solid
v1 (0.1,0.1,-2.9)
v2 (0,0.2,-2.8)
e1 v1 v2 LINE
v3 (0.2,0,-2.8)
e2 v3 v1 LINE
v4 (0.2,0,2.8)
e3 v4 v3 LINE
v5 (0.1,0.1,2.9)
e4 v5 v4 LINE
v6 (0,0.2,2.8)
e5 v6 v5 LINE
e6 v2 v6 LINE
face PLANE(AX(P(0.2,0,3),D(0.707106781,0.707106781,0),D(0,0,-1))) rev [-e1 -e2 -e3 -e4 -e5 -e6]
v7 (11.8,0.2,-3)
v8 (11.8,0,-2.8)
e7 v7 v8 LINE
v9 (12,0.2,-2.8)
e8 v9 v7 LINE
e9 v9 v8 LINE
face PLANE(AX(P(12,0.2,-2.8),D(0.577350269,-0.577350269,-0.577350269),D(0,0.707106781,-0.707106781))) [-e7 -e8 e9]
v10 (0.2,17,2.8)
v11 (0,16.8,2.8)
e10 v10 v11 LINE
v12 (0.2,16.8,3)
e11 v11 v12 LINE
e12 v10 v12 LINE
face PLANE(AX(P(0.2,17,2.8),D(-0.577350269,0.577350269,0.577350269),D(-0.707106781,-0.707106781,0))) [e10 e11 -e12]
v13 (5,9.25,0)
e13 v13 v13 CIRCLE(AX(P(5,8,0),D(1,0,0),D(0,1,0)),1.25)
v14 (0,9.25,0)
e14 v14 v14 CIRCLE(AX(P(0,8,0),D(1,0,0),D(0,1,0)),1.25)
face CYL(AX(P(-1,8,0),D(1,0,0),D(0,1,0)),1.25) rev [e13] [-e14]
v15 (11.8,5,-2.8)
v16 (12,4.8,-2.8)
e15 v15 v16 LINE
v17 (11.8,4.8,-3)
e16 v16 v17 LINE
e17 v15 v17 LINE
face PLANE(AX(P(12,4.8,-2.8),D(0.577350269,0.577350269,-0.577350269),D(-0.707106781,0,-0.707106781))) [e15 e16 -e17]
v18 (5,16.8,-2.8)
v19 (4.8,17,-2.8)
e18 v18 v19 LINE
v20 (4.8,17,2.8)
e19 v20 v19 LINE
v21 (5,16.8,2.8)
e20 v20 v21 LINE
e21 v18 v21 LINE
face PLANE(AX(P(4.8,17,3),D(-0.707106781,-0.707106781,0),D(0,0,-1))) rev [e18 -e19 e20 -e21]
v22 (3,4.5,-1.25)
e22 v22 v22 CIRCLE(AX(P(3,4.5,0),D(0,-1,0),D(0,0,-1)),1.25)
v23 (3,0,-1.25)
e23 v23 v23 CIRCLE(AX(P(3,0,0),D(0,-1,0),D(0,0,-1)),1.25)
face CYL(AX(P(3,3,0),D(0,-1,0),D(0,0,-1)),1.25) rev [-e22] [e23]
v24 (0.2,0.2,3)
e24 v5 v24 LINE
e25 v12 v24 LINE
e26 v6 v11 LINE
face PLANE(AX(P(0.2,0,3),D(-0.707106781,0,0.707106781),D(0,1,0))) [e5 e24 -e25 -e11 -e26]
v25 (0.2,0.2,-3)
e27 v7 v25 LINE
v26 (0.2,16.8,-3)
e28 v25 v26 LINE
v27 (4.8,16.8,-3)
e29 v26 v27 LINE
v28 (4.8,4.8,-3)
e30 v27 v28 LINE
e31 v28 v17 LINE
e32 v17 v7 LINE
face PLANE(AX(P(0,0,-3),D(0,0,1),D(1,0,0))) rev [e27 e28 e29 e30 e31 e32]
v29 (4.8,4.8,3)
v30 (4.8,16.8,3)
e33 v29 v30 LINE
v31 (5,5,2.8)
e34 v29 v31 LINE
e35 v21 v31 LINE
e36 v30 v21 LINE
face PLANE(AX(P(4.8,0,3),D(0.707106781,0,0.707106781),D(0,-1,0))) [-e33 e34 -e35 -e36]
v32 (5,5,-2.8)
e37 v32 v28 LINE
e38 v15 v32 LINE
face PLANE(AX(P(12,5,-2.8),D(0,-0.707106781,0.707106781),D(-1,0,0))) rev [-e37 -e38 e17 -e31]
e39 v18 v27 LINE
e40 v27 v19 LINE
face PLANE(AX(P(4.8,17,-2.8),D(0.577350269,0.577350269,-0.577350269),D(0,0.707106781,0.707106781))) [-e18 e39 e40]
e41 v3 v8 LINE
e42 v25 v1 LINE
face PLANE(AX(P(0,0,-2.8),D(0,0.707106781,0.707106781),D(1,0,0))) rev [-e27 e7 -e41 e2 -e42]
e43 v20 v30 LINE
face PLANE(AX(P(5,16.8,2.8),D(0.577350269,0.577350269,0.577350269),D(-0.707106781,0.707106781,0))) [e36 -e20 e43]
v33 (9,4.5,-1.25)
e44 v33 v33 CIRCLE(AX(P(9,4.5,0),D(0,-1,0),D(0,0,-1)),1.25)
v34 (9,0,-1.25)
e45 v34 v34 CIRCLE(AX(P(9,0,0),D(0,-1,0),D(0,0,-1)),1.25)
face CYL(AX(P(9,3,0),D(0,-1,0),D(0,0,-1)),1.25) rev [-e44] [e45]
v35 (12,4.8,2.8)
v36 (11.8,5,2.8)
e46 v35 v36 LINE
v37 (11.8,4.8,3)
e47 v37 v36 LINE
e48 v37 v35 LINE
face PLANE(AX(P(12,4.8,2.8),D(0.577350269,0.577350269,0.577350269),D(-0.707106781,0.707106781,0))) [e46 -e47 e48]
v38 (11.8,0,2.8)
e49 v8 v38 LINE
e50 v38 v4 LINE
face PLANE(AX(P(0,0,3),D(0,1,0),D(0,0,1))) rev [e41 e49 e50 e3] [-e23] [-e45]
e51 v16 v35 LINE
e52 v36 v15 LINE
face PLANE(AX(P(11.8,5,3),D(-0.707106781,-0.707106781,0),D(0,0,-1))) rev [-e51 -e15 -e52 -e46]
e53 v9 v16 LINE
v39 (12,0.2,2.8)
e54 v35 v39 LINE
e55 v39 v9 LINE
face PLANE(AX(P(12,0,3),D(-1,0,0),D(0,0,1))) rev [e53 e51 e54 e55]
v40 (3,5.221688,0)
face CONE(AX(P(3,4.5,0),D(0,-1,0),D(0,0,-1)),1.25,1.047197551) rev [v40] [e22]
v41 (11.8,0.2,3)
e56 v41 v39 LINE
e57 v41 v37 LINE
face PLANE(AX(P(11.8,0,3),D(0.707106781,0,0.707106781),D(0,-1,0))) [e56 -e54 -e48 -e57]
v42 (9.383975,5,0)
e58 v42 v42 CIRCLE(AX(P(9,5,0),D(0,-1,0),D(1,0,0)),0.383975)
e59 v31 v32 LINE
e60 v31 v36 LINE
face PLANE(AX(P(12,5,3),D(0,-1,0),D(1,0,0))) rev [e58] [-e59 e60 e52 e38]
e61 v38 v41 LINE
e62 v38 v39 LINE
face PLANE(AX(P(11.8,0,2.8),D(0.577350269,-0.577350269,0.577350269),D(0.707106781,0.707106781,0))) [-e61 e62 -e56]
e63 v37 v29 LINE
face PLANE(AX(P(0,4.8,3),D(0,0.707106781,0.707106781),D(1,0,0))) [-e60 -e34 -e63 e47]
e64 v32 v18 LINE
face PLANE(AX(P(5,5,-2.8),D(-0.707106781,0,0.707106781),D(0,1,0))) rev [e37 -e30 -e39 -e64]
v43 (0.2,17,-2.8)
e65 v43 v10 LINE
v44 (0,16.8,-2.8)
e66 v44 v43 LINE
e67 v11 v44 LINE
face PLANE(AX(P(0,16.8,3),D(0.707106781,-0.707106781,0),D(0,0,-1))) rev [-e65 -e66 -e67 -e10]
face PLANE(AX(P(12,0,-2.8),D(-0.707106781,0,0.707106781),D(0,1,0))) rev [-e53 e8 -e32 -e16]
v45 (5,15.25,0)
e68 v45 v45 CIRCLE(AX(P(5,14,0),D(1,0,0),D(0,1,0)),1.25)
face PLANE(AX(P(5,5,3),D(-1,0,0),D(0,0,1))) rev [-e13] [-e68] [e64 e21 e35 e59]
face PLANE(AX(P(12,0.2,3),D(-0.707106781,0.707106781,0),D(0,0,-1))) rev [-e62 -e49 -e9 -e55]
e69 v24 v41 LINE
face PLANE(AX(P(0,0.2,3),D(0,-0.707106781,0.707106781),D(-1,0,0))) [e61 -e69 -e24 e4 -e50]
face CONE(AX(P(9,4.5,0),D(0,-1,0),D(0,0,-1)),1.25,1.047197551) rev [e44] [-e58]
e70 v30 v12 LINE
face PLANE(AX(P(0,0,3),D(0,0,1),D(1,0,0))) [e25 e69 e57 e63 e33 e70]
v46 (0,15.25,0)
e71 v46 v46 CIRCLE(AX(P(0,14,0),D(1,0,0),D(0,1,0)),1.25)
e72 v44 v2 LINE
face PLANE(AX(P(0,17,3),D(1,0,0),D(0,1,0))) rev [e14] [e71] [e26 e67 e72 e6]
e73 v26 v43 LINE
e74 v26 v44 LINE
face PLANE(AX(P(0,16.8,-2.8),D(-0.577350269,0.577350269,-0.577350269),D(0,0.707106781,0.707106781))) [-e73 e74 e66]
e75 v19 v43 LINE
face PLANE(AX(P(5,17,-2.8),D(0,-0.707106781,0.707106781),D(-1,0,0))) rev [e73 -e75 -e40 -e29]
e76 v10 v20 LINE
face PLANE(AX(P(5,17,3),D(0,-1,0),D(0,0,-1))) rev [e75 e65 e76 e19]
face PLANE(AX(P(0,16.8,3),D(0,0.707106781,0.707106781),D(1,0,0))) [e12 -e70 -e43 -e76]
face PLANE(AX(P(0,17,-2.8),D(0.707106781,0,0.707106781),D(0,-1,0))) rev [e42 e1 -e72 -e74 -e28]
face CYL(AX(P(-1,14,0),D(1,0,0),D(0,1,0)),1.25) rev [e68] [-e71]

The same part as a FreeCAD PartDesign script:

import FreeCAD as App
import Part
import Sketcher

V = App.Vector
Q = App.Units.Quantity


def edges_at(feature, points):
    """Names of the edges that pass closest to the given points."""
    edges = feature.Shape.Edges
    near = lambda p: min(range(len(edges)), key=lambda i: edges[i].distToShape(Part.Vertex(*p))[0])
    return sorted({f"Edge{near(p) + 1}" for p in points})


def add_polygon(sketch, points):
    """Adds a closed chain of lines whose ends are joined by coincident constraints."""
    first, n = sketch.GeometryCount, len(points)
    for a, b in zip(points, points[1:] + points[:1]):
        sketch.addGeometry(Part.LineSegment(App.Vector(*a, 0), App.Vector(*b, 0)), False)
    for i in range(n):
        sketch.addConstraint(Sketcher.Constraint("Coincident", first + i, 2, first + (i + 1) % n, 1))

doc = App.newDocument("Part")
body = doc.addObject("PartDesign::Body", "Body")

# Sketch on XY plane
sketch1 = body.newObject("Sketcher::SketchObject", "Sketch")
sketch1.AttachmentSupport = (doc.getObject("XY_Plane"), [""])
sketch1.MapMode = "FlatFace"
add_polygon(sketch1, [(0, 17), (0, 0), (12, 0), (12, 5), (5, 5), (5, 17)])  # lines 0-5
sketch1.addConstraint([
    Sketcher.Constraint("Vertical", 0),
    Sketcher.Constraint("Horizontal", 1),
    Sketcher.Constraint("Vertical", 2),
    Sketcher.Constraint("Horizontal", 3),
    Sketcher.Constraint("Vertical", 4),
    Sketcher.Constraint("Horizontal", 5),
    Sketcher.Constraint("Coincident", 0, 2, -1, 1),
    Sketcher.Constraint("Equal", 5, 2),
    Sketcher.Constraint("Equal", 1, 4),
    Sketcher.Constraint("DistanceX", 1, 1, 1, 2, Q("12 mm")),
    Sketcher.Constraint("DistanceX", 3, 2, 3, 1, Q("7 mm")),
])
pad1 = body.newObject("PartDesign::Pad", "Pad")
pad1.Profile = sketch1
pad1.Length = 6
pad1.Midplane = True

# Sketch on YZ plane
sketch2 = body.newObject("Sketcher::SketchObject", "Sketch001")
sketch2.AttachmentSupport = (doc.getObject("YZ_Plane"), [""])
sketch2.MapMode = "FlatFace"
sketch2.AttachmentOffset = App.Placement(V(0, 0, 5), App.Rotation())
sketch2.addGeometry([
    Part.Circle(V(14, 0, 0), V(0, 0, 1), 1.25),
    Part.Circle(V(8, 0, 0), V(0, 0, 1), 1.25),
], False)
sketch2.addConstraint([
    Sketcher.Constraint("Equal", 0, 1),
    Sketcher.Constraint("PointOnObject", 0, 3, -1),
    Sketcher.Constraint("PointOnObject", 1, 3, -1),
    Sketcher.Constraint("Diameter", 0, Q("2.5 mm")),
    Sketcher.Constraint("DistanceX", -1, 1, 0, 3, Q("14 mm")),
    Sketcher.Constraint("DistanceX", -1, 1, 1, 3, Q("8 mm")),
])
pocket1 = body.newObject("PartDesign::Pocket", "Pocket")
pocket1.Profile = sketch2
pocket1.Length = 6

# Sketch on XZ plane
sketch3 = body.newObject("Sketcher::SketchObject", "Sketch002")
sketch3.AttachmentSupport = (doc.getObject("XZ_Plane"), [""])
sketch3.MapMode = "FlatFace"
sketch3.addGeometry([
    Part.Circle(V(9, 0, 0), V(0, 0, 1), 1.25),
    Part.Circle(V(3, 0, 0), V(0, 0, 1), 1.25),
], False)
sketch3.addConstraint([
    Sketcher.Constraint("Equal", 0, 1),
    Sketcher.Constraint("PointOnObject", 0, 3, -1),
    Sketcher.Constraint("PointOnObject", 1, 3, -1),
    Sketcher.Constraint("Diameter", 0, Q("2.5 mm")),
    Sketcher.Constraint("DistanceX", -1, 1, 0, 3, Q("9 mm")),
    Sketcher.Constraint("DistanceX", -1, 1, 1, 3, Q("3 mm")),
])
pocket2 = body.newObject("PartDesign::Pocket", "Pocket001")
pocket2.Profile = sketch3
pocket2.Length = 3

# Sketch on XZ plane
sketch4 = body.newObject("Sketcher::SketchObject", "Sketch003")
sketch4.AttachmentSupport = (doc.getObject("XZ_Plane"), [""])
sketch4.MapMode = "FlatFace"
sketch4.addGeometry([
    Part.Circle(V(3, 0, 0), V(0, 0, 1), 1.25),
    Part.Circle(V(9, 0, 0), V(0, 0, 1), 1.25),
], False)
sketch4.addConstraint([
    Sketcher.Constraint("Equal", 0, 1),
    Sketcher.Constraint("PointOnObject", 0, 3, -1),
    Sketcher.Constraint("PointOnObject", 1, 3, -1),
    Sketcher.Constraint("Diameter", 0, Q("2.5 mm")),
    Sketcher.Constraint("DistanceX", -1, 1, 0, 3, Q("3 mm")),
    Sketcher.Constraint("DistanceX", -1, 1, 1, 3, Q("9 mm")),
])
doc.recompute()
hole = body.newObject("PartDesign::Hole", "Hole")
hole.Profile = sketch4
hole.ThreadType = "None"
hole.Diameter = 2.5
hole.DepthType = "Dimension"
hole.Depth = 4.5
hole.DrillPoint = "Angled"
hole.DrillPointAngle = 120
doc.recompute()

chamfer = body.newObject("PartDesign::Chamfer", "Chamfer")
chamfer.Base = (hole, edges_at(hole, [
    (6, 0, 3),
    (5, 17, 0),
    (12, 5, 0),
    (12, 0, 0),
    (0, 17, 0),
    (12, 2.5, 3),
    (8.5, 5, 3),
    (5, 11, 3),
    (2.5, 17, 3),
    (5, 11, -3),
    (8.5, 5, -3),
    (12, 2.5, -3),
    (0, 8.5, 3),
    (6, 0, -3),
    (0, 8.5, -3),
    (2.5, 17, -3),
]))
chamfer.Size = 0.2
doc.recompute()

chamfer2 = body.newObject("PartDesign::Chamfer", "Chamfer001")
chamfer2.Base = (chamfer, edges_at(chamfer, [(0, 0, 0)]))
chamfer2.Size = 0.2

doc.recompute()
